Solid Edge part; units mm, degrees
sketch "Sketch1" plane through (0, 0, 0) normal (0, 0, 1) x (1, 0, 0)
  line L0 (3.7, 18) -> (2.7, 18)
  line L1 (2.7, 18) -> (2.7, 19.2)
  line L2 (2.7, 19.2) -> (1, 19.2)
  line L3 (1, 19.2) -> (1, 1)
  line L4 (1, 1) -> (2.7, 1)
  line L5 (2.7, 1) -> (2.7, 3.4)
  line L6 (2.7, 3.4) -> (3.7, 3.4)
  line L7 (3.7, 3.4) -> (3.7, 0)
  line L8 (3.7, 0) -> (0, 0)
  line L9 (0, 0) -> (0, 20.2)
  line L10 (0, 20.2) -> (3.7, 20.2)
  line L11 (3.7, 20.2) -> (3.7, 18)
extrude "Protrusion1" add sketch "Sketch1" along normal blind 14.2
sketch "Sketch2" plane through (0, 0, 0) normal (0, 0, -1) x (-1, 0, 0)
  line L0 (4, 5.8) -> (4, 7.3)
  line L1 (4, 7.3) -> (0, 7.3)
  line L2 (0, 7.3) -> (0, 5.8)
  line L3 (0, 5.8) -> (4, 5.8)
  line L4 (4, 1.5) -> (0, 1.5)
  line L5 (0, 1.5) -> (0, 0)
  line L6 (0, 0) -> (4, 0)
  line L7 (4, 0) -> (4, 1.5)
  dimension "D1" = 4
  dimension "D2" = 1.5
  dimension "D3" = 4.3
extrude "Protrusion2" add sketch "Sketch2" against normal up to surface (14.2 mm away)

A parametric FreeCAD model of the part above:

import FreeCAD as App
import Part
import Sketcher
from FreeCAD import Vector

doc = App.newDocument("Part")
params = doc.addObject("Spreadsheet::Sheet", "Params")
for row, (alias, value) in enumerate([
    ("sketch1_width", "1 mm"),
    ("sketch1_width2", "3.7 mm"),
    ("sketch1_width3", "1.7 mm"),
    ("sketch1_height", "2.2 mm"),
    ("sketch1_height2", "20.2 mm"),
    ("pad1_length", "14.2 mm"),
    ("sketch2_width", "4 mm"),
    ("sketch2_height", "1.5 mm"),
    ("pad2_length", "14.2 mm"),
], start=1):
    params.set(f"A{row}", alias)
    params.set(f"B{row}", "=" + value)
    params.setAlias(f"B{row}", alias)

body = doc.addObject("PartDesign::Body", "Body")

# Sketch on XY plane
sketch1 = body.newObject("Sketcher::SketchObject", "Sketch")
sketch1.AttachmentSupport = (doc.getObject("XY_Plane"), [""])
sketch1.MapMode = "FlatFace"
sketch1.addGeometry([
    Part.LineSegment(Vector(2.7, 18, 0), Vector(3.7, 18, 0)),  # 0
    Part.LineSegment(Vector(3.7, 18, 0), Vector(3.7, 20.2, 0)),  # 1
    Part.LineSegment(Vector(3.7, 20.2, 0), Vector(0, 20.2, 0)),  # 2
    Part.LineSegment(Vector(0, 20.2, 0), Vector(0, 0, 0)),  # 3
    Part.LineSegment(Vector(0, 0, 0), Vector(3.7, 0, 0)),  # 4
    Part.LineSegment(Vector(3.7, 0, 0), Vector(3.7, 3.4, 0)),  # 5
    Part.LineSegment(Vector(3.7, 3.4, 0), Vector(2.7, 3.4, 0)),  # 6
    Part.LineSegment(Vector(2.7, 3.4, 0), Vector(2.7, 1, 0)),  # 7
    Part.LineSegment(Vector(2.7, 1, 0), Vector(1, 1, 0)),  # 8
    Part.LineSegment(Vector(1, 1, 0), Vector(1, 19.2, 0)),  # 9
    Part.LineSegment(Vector(1, 19.2, 0), Vector(2.7, 19.2, 0)),  # 10
    Part.LineSegment(Vector(2.7, 19.2, 0), Vector(2.7, 18, 0)),  # 11
], False)
sketch1.addConstraint([
    Sketcher.Constraint("Coincident", 0, 2, 1, 1),
    Sketcher.Constraint("Coincident", 1, 2, 2, 1),
    Sketcher.Constraint("Coincident", 2, 2, 3, 1),
    Sketcher.Constraint("Coincident", 3, 2, 4, 1),
    Sketcher.Constraint("Coincident", 4, 2, 5, 1),
    Sketcher.Constraint("Coincident", 5, 2, 6, 1),
    Sketcher.Constraint("Coincident", 6, 2, 7, 1),
    Sketcher.Constraint("Coincident", 7, 2, 8, 1),
    Sketcher.Constraint("Coincident", 8, 2, 9, 1),
    Sketcher.Constraint("Coincident", 9, 2, 10, 1),
    Sketcher.Constraint("Coincident", 10, 2, 11, 1),
    Sketcher.Constraint("Coincident", 11, 2, 0, 1),
    Sketcher.Constraint("Horizontal", 0),
    Sketcher.Constraint("Vertical", 1),
    Sketcher.Constraint("Horizontal", 2),
    Sketcher.Constraint("Vertical", 3),
    Sketcher.Constraint("Horizontal", 4),
    Sketcher.Constraint("Vertical", 5),
    Sketcher.Constraint("Horizontal", 6),
    Sketcher.Constraint("Vertical", 7),
    Sketcher.Constraint("Horizontal", 8),
    Sketcher.Constraint("Vertical", 9),
    Sketcher.Constraint("Horizontal", 10),
    Sketcher.Constraint("Vertical", 11),
    Sketcher.Constraint("Coincident", 3, 2, -1, 1),
    Sketcher.Constraint("Vertical", 1, 2, 4, 2),
    Sketcher.Constraint("Vertical", 7, 2, 10, 2),
    Sketcher.Constraint("DistanceX", 0, 1, 0, 2, 1.0),
    Sketcher.Constraint("DistanceX", 2, 2, 2, 1, 3.7),
    Sketcher.Constraint("DistanceX", 8, 2, 8, 1, 1.7),
    Sketcher.Constraint("DistanceY", 1, 1, 1, 2, 2.2),
    Sketcher.Constraint("DistanceY", 3, 2, 3, 1, 20.2),
    Sketcher.Constraint("DistanceY", 5, 1, 5, 2, 3.4),
    Sketcher.Constraint("DistanceY", 7, 2, 7, 1, 2.4),
    Sketcher.Constraint("DistanceY", 9, 1, 9, 2, 18.2),
])
sketch1.setExpression("Constraints[27]", "Params.sketch1_width")
sketch1.setExpression("Constraints[28]", "Params.sketch1_width2")
sketch1.setExpression("Constraints[29]", "Params.sketch1_width3")
sketch1.setExpression("Constraints[30]", "Params.sketch1_height")
sketch1.setExpression("Constraints[31]", "Params.sketch1_height2")
pad1 = body.newObject("PartDesign::Pad", "Pad")
pad1.Profile = sketch1
pad1.setExpression("Length", "Params.pad1_length")

# Sketch on XY plane
sketch2 = body.newObject("Sketcher::SketchObject", "Sketch001")
sketch2.AttachmentSupport = (doc.getObject("XY_Plane"), [""])
sketch2.MapMode = "FlatFace"
sketch2.addGeometry([
    Part.LineSegment(Vector(0, 5.8, 0), Vector(-4, 5.8, 0)),  # 0
    Part.LineSegment(Vector(-4, 5.8, 0), Vector(-4, 7.3, 0)),  # 1
    Part.LineSegment(Vector(-4, 7.3, 0), Vector(0, 7.3, 0)),  # 2
    Part.LineSegment(Vector(0, 7.3, 0), Vector(0, 5.8, 0)),  # 3
    Part.LineSegment(Vector(-4, 0, 0), Vector(-4, 1.5, 0)),  # 4
    Part.LineSegment(Vector(-4, 1.5, 0), Vector(0, 1.5, 0)),  # 5
    Part.LineSegment(Vector(0, 1.5, 0), Vector(0, 0, 0)),  # 6
    Part.LineSegment(Vector(0, 0, 0), Vector(-4, 0, 0)),  # 7
], False)
sketch2.addConstraint([
    Sketcher.Constraint("Coincident", 0, 2, 1, 1),
    Sketcher.Constraint("Coincident", 1, 2, 2, 1),
    Sketcher.Constraint("Coincident", 2, 2, 3, 1),
    Sketcher.Constraint("Coincident", 3, 2, 0, 1),
    Sketcher.Constraint("Coincident", 4, 2, 5, 1),
    Sketcher.Constraint("Coincident", 5, 2, 6, 1),
    Sketcher.Constraint("Coincident", 6, 2, 7, 1),
    Sketcher.Constraint("Coincident", 7, 2, 4, 1),
    Sketcher.Constraint("Horizontal", 0),
    Sketcher.Constraint("Vertical", 1),
    Sketcher.Constraint("Horizontal", 2),
    Sketcher.Constraint("Vertical", 3),
    Sketcher.Constraint("Vertical", 4),
    Sketcher.Constraint("Horizontal", 5),
    Sketcher.Constraint("Vertical", 6),
    Sketcher.Constraint("Horizontal", 7),
    Sketcher.Constraint("Coincident", 6, 2, -1, 1),
    Sketcher.Constraint("PointOnObject", 2, 2, -2),
    Sketcher.Constraint("Vertical", 1, 2, 4, 2),
    Sketcher.Constraint("Equal", 3, 4),
    Sketcher.Constraint("DistanceX", 0, 2, 0, 1, 4.0),
    Sketcher.Constraint("DistanceY", 1, 1, 1, 2, 1.5),
    Sketcher.Constraint("DistanceY", -1, 1, 0, 2, 5.8),
])
sketch2.setExpression("Constraints[20]", "Params.sketch2_width")
sketch2.setExpression("Constraints[21]", "Params.sketch2_height")
pad2 = body.newObject("PartDesign::Pad", "Pad001")
pad2.Profile = sketch2
pad2.setExpression("Length", "Params.pad2_length")

doc.recompute()
